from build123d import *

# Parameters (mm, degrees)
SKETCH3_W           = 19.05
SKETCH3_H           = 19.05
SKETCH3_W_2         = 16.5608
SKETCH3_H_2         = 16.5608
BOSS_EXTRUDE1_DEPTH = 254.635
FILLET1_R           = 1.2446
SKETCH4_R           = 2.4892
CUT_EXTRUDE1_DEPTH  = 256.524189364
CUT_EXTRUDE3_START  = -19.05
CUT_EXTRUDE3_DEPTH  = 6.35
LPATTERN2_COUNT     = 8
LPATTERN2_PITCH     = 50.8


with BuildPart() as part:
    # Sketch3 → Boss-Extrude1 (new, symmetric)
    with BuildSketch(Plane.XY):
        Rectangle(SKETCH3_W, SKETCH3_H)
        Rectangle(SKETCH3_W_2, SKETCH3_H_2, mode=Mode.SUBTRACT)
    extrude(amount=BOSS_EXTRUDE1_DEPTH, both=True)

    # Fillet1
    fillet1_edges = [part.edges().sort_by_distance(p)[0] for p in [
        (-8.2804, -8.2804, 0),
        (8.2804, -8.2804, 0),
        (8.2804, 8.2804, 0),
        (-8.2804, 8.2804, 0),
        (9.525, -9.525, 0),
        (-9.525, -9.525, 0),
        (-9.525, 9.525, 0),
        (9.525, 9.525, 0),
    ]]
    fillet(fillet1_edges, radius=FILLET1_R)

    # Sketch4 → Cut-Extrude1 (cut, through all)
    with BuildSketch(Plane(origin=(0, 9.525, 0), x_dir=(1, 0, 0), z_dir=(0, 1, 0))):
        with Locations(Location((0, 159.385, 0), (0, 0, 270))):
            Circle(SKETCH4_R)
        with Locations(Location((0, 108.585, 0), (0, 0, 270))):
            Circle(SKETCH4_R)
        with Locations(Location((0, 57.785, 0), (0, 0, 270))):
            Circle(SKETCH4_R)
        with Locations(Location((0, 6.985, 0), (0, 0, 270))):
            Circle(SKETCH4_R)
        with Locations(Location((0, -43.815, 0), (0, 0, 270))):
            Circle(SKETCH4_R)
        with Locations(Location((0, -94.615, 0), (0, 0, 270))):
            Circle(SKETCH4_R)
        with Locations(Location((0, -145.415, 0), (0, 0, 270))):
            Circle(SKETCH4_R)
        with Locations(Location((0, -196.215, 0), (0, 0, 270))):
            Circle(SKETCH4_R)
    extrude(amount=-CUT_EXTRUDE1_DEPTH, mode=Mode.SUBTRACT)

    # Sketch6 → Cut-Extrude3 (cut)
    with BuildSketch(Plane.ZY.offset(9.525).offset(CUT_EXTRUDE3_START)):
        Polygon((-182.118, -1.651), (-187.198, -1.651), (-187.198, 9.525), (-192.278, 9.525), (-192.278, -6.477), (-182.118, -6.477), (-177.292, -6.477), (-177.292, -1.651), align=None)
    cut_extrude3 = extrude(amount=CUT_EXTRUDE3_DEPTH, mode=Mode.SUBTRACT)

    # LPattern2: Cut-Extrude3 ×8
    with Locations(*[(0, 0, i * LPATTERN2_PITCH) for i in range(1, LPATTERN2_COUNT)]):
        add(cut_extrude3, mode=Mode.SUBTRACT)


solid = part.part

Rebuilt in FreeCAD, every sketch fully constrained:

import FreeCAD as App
import Part
import Sketcher
Q = App.Units.Quantity


def edges_at(feature, points):
    """Names of the edges that pass closest to the given points."""
    edges = feature.Shape.Edges
    near = lambda p: min(range(len(edges)), key=lambda i: edges[i].distToShape(Part.Vertex(*p))[0])
    return sorted({f"Edge{near(p) + 1}" for p in points})


def add_polygon(sketch, points):
    """Adds a closed chain of lines whose ends are joined by coincident constraints."""
    first, n = sketch.GeometryCount, len(points)
    for a, b in zip(points, points[1:] + points[:1]):
        sketch.addGeometry(Part.LineSegment(App.Vector(*a, 0), App.Vector(*b, 0)), False)
    for i in range(n):
        sketch.addConstraint(Sketcher.Constraint("Coincident", first + i, 2, first + (i + 1) % n, 1))

doc = App.newDocument("Part")
body = doc.addObject("PartDesign::Body", "Body")

# Sketch on XY plane
sketch1 = doc.addObject("Sketcher::SketchObject", "Sketch")
body.addObject(sketch1)
sketch1.AttachmentSupport = (doc.XY_Plane, [""])
sketch1.MapMode = "FlatFace"
add_polygon(sketch1, [(-10, 10), (-10, -10), (10, -10), (10, 10)])  # lines 0-3
add_polygon(sketch1, [(8, -8), (-8, -8), (-8, 8), (8, 8)])  # lines 4-7
sketch1.addConstraint(Sketcher.Constraint("Vertical", 0))
sketch1.addConstraint(Sketcher.Constraint("Horizontal", 1))
sketch1.addConstraint(Sketcher.Constraint("Vertical", 2))
sketch1.addConstraint(Sketcher.Constraint("Horizontal", 3))
sketch1.addConstraint(Sketcher.Constraint("Horizontal", 4))
sketch1.addConstraint(Sketcher.Constraint("Vertical", 5))
sketch1.addConstraint(Sketcher.Constraint("Horizontal", 6))
sketch1.addConstraint(Sketcher.Constraint("Vertical", 7))
sketch1.addConstraint(Sketcher.Constraint("Symmetric", 0, 2, 2, 2, -1, 1))
sketch1.addConstraint(Sketcher.Constraint("Symmetric", 4, 2, 6, 2, -1, 1))
sketch1.addConstraint(Sketcher.Constraint("Equal", 3, 0))
sketch1.addConstraint(Sketcher.Constraint("Equal", 6, 5))
sketch1.addConstraint(Sketcher.Constraint("DistanceX", 1, 1, 1, 2, Q("0.75 in")))
sketch1.addConstraint(Sketcher.Constraint("DistanceX", 4, 2, 4, 1, Q("0.652 in")))
pad1 = doc.addObject("PartDesign::Pad", "Pad")
body.addObject(pad1)
pad1.Profile = sketch1
pad1.Length = Q("20.05 in")
pad1.Midplane = True
doc.recompute()

fillet = doc.addObject("PartDesign::Fillet", "Fillet")
body.addObject(fillet)
fillet.Base = (pad1, edges_at(pad1, [
    (-8.28, -8.28, 0),
    (8.28, -8.28, 0),
    (8.28, 8.28, 0),
    (-8.28, 8.28, 0),
    (9.525, -9.525, 0),
    (-9.525, -9.525, 0),
    (-9.525, 9.525, 0),
    (9.525, 9.525, 0),
]))
fillet.Radius = Q("0.049 in")

# Sketch on XZ plane
sketch2 = doc.addObject("Sketcher::SketchObject", "Sketch001")
body.addObject(sketch2)
sketch2.AttachmentSupport = (doc.XZ_Plane, [""])
sketch2.MapMode = "FlatFace"
sketch2.AttachmentOffset = App.Placement(App.Vector(0, 0, -0.375 * 25.4), App.Rotation())
sketch2.addGeometry(Part.Circle(App.Vector(0, -159.4, 0), App.Vector(0, 0, 1), 2.5), False)
sketch2.addGeometry(Part.Circle(App.Vector(0, -108.6, 0), App.Vector(0, 0, 1), 2.5), False)
sketch2.addGeometry(Part.Circle(App.Vector(0, -57.8, 0), App.Vector(0, 0, 1), 2.5), False)
sketch2.addGeometry(Part.Circle(App.Vector(0, -7, 0), App.Vector(0, 0, 1), 2.5), False)
sketch2.addGeometry(Part.Circle(App.Vector(0, 43.8, 0), App.Vector(0, 0, 1), 2.5), False)
sketch2.addGeometry(Part.Circle(App.Vector(0, 94.6, 0), App.Vector(0, 0, 1), 2.5), False)
sketch2.addGeometry(Part.Circle(App.Vector(0, 145.4, 0), App.Vector(0, 0, 1), 2.5), False)
sketch2.addGeometry(Part.Circle(App.Vector(0, 196.2, 0), App.Vector(0, 0, 1), 2.5), False)
sketch2.addConstraint(Sketcher.Constraint("Equal", 0, 1))
sketch2.addConstraint(Sketcher.Constraint("Equal", 1, 2))
sketch2.addConstraint(Sketcher.Constraint("Equal", 2, 3))
sketch2.addConstraint(Sketcher.Constraint("Equal", 3, 4))
sketch2.addConstraint(Sketcher.Constraint("Equal", 4, 5))
sketch2.addConstraint(Sketcher.Constraint("Equal", 5, 6))
sketch2.addConstraint(Sketcher.Constraint("Equal", 6, 7))
sketch2.addConstraint(Sketcher.Constraint("PointOnObject", 0, 3, -2))
sketch2.addConstraint(Sketcher.Constraint("PointOnObject", 1, 3, -2))
sketch2.addConstraint(Sketcher.Constraint("PointOnObject", 2, 3, -2))
sketch2.addConstraint(Sketcher.Constraint("PointOnObject", 3, 3, -2))
sketch2.addConstraint(Sketcher.Constraint("PointOnObject", 4, 3, -2))
sketch2.addConstraint(Sketcher.Constraint("PointOnObject", 5, 3, -2))
sketch2.addConstraint(Sketcher.Constraint("PointOnObject", 6, 3, -2))
sketch2.addConstraint(Sketcher.Constraint("PointOnObject", 7, 3, -2))
sketch2.addConstraint(Sketcher.Constraint("Diameter", 0, Q("0.196 in")))
sketch2.addConstraint(Sketcher.Constraint("DistanceY", 0, 3, 1, 3, Q("2 in")))
sketch2.addConstraint(Sketcher.Constraint("DistanceY", 1, 3, 2, 3, Q("2 in")))
sketch2.addConstraint(Sketcher.Constraint("DistanceY", 2, 3, 3, 3, Q("2 in")))
sketch2.addConstraint(Sketcher.Constraint("DistanceY", 3, 3, 4, 3, Q("2 in")))
sketch2.addConstraint(Sketcher.Constraint("DistanceY", 4, 3, 5, 3, Q("2 in")))
sketch2.addConstraint(Sketcher.Constraint("DistanceY", 5, 3, 6, 3, Q("2 in")))
sketch2.addConstraint(Sketcher.Constraint("DistanceY", 6, 3, 7, 3, Q("2 in")))
sketch2.addConstraint(Sketcher.Constraint("DistanceY", 0, 3, -1, 1, Q("6.275 in")))
pocket1 = doc.addObject("PartDesign::Pocket", "Pocket")
body.addObject(pocket1)
pocket1.Profile = sketch2
pocket1.Type = "ThroughAll"
pocket1.Reversed = True

# Sketch on YZ plane
sketch3 = doc.addObject("Sketcher::SketchObject", "Sketch002")
body.addObject(sketch3)
sketch3.AttachmentSupport = (doc.YZ_Plane, [""])
sketch3.MapMode = "FlatFace"
sketch3.AttachmentOffset = App.Placement(App.Vector(0, 0, 0.375 * 25.4), App.Rotation())
add_polygon(sketch3, [(-1.7, -187.2), (9.5, -187.2), (9.5, -192.3), (-6.5, -192.3), (-6.5, -177.3), (-1.7, -177.3)])  # lines 0-5
sketch3.addConstraint(Sketcher.Constraint("Horizontal", 0))
sketch3.addConstraint(Sketcher.Constraint("Vertical", 1))
sketch3.addConstraint(Sketcher.Constraint("Horizontal", 2))
sketch3.addConstraint(Sketcher.Constraint("Vertical", 3))
sketch3.addConstraint(Sketcher.Constraint("Horizontal", 4))
sketch3.addConstraint(Sketcher.Constraint("Vertical", 5))
sketch3.addConstraint(Sketcher.Constraint("DistanceY", 1, 2, 1, 1, Q("0.2 in")))
sketch3.addConstraint(Sketcher.Constraint("DistanceX", 0, 1, 0, 2, Q("0.44 in")))
sketch3.addConstraint(Sketcher.Constraint("DistanceX", 2, 2, 2, 1, Q("0.63 in")))
sketch3.addConstraint(Sketcher.Constraint("DistanceY", 3, 1, 3, 2, Q("0.59 in")))
sketch3.addConstraint(Sketcher.Constraint("DistanceY", 0, 2, -1, 1, Q("7.37 in")))
sketch3.addConstraint(Sketcher.Constraint("DistanceX", -1, 1, 0, 2, Q("0.375 in")))
pocket2 = doc.addObject("PartDesign::Pocket", "Pocket001")
body.addObject(pocket2)
pocket2.Profile = sketch3
pocket2.Length = Q("0.25 in")
doc.recompute()

linearpattern = doc.addObject("PartDesign::LinearPattern", "LinearPattern")
body.addObject(linearpattern)
linearpattern.Originals = [pocket2]
linearpattern.Direction = (doc.Z_Axis, [""])
linearpattern.Mode = "offset"
linearpattern.Offset = Q("2 in")
linearpattern.Occurrences = 8
body.Tip = linearpattern

doc.recompute()
